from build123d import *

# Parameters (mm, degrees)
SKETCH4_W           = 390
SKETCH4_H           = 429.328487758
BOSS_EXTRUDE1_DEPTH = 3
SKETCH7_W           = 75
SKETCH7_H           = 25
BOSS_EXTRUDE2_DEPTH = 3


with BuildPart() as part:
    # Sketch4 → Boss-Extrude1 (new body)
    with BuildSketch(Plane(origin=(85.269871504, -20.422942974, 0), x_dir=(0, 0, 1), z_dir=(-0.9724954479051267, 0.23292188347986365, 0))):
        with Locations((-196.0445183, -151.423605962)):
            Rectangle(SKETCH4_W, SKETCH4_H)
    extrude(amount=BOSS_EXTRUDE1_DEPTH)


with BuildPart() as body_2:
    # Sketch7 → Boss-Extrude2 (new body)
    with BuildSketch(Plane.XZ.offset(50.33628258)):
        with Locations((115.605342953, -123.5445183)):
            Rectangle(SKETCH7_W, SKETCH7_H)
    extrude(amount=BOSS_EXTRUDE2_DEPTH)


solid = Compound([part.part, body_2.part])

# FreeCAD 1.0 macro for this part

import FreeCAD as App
import Part
import Sketcher

doc = App.newDocument("Part")
body = doc.addObject("PartDesign::Body", "Body")

sketch1 = body.newObject("Sketcher::SketchObject", "Sketch")
sketch1.Placement = App.Placement(App.Vector(85.269872, -20.422943, 0), App.Rotation(App.Vector(0, 0, 1), App.Vector(0.232921883, 0.972495448, 0), App.Vector(-0.972495448, 0.232921883, 0), "ZXY"))
sketch1.addGeometry([
    Part.LineSegment(App.Vector(-391, 63, 0), App.Vector(-391, -366, 0)),
    Part.LineSegment(App.Vector(-391, -366, 0), App.Vector(-1, -366, 0)),
    Part.LineSegment(App.Vector(-1, -366, 0), App.Vector(-1, 63, 0)),
    Part.LineSegment(App.Vector(-1, 63, 0), App.Vector(-391, 63, 0)),
], False)
sketch1.addConstraint([
    Sketcher.Constraint("Coincident", 0, 2, 1, 1),
    Sketcher.Constraint("Coincident", 1, 2, 2, 1),
    Sketcher.Constraint("Coincident", 2, 2, 3, 1),
    Sketcher.Constraint("Coincident", 3, 2, 0, 1),
    Sketcher.Constraint("Vertical", 0),
    Sketcher.Constraint("Horizontal", 1),
    Sketcher.Constraint("Vertical", 2),
    Sketcher.Constraint("Horizontal", 3),
    Sketcher.Constraint("DistanceX", 1, 1, 1, 2, 390.0),
    Sketcher.Constraint("DistanceY", 0, 2, 0, 1, 429.328488),
    Sketcher.Constraint("DistanceX", 0, 2, -1, 1, 391.044518),
    Sketcher.Constraint("DistanceY", 0, 2, -1, 1, 366.08785),
])
pad1 = body.newObject("PartDesign::Pad", "Pad")
pad1.Profile = sketch1
pad1.Length = 3
body2 = doc.addObject("PartDesign::Body", "Body001")

sketch2 = body2.newObject("Sketcher::SketchObject", "Sketch001")
sketch2.AttachmentSupport = (doc.getObject("XZ_Plane001"), [""])
sketch2.MapMode = "FlatFace"
sketch2.AttachmentOffset = App.Placement(App.Vector(0, 0, 50.336283), App.Rotation())
sketch2.addGeometry([
    Part.LineSegment(App.Vector(78, -111, 0), App.Vector(78, -136, 0)),
    Part.LineSegment(App.Vector(78, -136, 0), App.Vector(153, -136, 0)),
    Part.LineSegment(App.Vector(153, -136, 0), App.Vector(153, -111, 0)),
    Part.LineSegment(App.Vector(153, -111, 0), App.Vector(78, -111, 0)),
], False)
sketch2.addConstraint([
    Sketcher.Constraint("Coincident", 0, 2, 1, 1),
    Sketcher.Constraint("Coincident", 1, 2, 2, 1),
    Sketcher.Constraint("Coincident", 2, 2, 3, 1),
    Sketcher.Constraint("Coincident", 3, 2, 0, 1),
    Sketcher.Constraint("Vertical", 0),
    Sketcher.Constraint("Horizontal", 1),
    Sketcher.Constraint("Vertical", 2),
    Sketcher.Constraint("Horizontal", 3),
    Sketcher.Constraint("DistanceX", 1, 1, 1, 2, 75.0),
    Sketcher.Constraint("DistanceY", 0, 2, 0, 1, 25.0),
    Sketcher.Constraint("DistanceY", 0, 2, -1, 1, 136.044518),
    Sketcher.Constraint("DistanceX", -1, 1, 0, 2, 78.105343),
])
pad2 = body2.newObject("PartDesign::Pad", "Pad001")
pad2.Profile = sketch2
pad2.Length = 3

doc.recompute()
